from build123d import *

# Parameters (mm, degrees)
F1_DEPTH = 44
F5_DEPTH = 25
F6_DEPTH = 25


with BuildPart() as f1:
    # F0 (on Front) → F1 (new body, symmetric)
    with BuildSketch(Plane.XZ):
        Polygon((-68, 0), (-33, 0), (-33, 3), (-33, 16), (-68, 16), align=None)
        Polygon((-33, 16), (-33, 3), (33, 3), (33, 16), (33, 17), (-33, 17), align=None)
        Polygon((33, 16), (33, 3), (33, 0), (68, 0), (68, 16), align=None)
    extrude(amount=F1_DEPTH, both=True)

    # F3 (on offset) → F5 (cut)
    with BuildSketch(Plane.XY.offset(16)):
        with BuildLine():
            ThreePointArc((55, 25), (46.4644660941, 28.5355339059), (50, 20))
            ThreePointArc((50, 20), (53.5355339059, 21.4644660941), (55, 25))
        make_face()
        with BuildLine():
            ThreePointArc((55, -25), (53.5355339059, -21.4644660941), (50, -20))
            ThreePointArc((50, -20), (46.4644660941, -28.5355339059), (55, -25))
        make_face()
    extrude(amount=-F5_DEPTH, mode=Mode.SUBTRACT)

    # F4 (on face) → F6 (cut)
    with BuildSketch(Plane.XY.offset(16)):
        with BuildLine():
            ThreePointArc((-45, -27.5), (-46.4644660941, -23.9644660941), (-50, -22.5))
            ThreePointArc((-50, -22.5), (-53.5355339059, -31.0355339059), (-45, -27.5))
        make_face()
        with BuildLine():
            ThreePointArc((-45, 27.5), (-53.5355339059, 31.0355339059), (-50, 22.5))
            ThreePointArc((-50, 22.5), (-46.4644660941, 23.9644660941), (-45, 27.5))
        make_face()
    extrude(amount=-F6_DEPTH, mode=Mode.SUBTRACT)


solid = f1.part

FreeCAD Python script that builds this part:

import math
import FreeCAD as App
import Part
import Sketcher


def add_polygon(sketch, points):
    """Adds a closed chain of lines whose ends are joined by coincident constraints."""
    first, n = sketch.GeometryCount, len(points)
    for a, b in zip(points, points[1:] + points[:1]):
        sketch.addGeometry(Part.LineSegment(App.Vector(*a, 0), App.Vector(*b, 0)), False)
    for i in range(n):
        sketch.addConstraint(Sketcher.Constraint("Coincident", first + i, 2, first + (i + 1) % n, 1))

doc = App.newDocument("Part")
body = doc.addObject("PartDesign::Body", "Body")

# Sketch on XZ plane
sketch1 = body.newObject("Sketcher::SketchObject", "Sketch")
sketch1.AttachmentSupport = (doc.getObject("XZ_Plane"), [""])
sketch1.MapMode = "FlatFace"
add_polygon(sketch1, [(-68, 0), (-33, 0), (-33, 3), (33, 3), (33, 0), (68, 0), (68, 16), (33, 16), (33, 17), (-33, 17), (-33, 16), (-68, 16)])  # lines 0-11
sketch1.addConstraint([
    Sketcher.Constraint("Horizontal", 0),
    Sketcher.Constraint("Vertical", 1),
    Sketcher.Constraint("Horizontal", 2),
    Sketcher.Constraint("Vertical", 3),
    Sketcher.Constraint("Horizontal", 4),
    Sketcher.Constraint("Vertical", 5),
    Sketcher.Constraint("Horizontal", 6),
    Sketcher.Constraint("Vertical", 7),
    Sketcher.Constraint("Horizontal", 8),
    Sketcher.Constraint("Vertical", 9),
    Sketcher.Constraint("Horizontal", 10),
    Sketcher.Constraint("Vertical", 11),
    Sketcher.Constraint("Symmetric", 0, 2, 3, 2, -1, 1),
    Sketcher.Constraint("Symmetric", 6, 2, 9, 2, -2),
    Sketcher.Constraint("Symmetric", 4, 2, 11, 2, -2),
    Sketcher.Constraint("Vertical", 3, 2, 6, 2),
    Sketcher.Constraint("DistanceX", 0, 1, 0, 2, 35.0),
    Sketcher.Constraint("DistanceX", 2, 1, 2, 2, 66.0),
    Sketcher.Constraint("DistanceY", 1, 1, 1, 2, 3.0),
    Sketcher.Constraint("DistanceY", 5, 1, 5, 2, 16.0),
    Sketcher.Constraint("DistanceY", 7, 1, 7, 2, 1.0),
])
pad1 = body.newObject("PartDesign::Pad", "Pad")
pad1.Profile = sketch1
pad1.Length = 88
pad1.Midplane = True

# Sketch on XY plane
sketch2 = body.newObject("Sketcher::SketchObject", "Sketch001")
sketch2.AttachmentSupport = (doc.getObject("XY_Plane"), [""])
sketch2.MapMode = "FlatFace"
sketch2.AttachmentOffset = App.Placement(App.Vector(0, 0, 16), App.Rotation())
sketch2.addGeometry([
    Part.ArcOfCircle(Part.Circle(App.Vector(50, 25, 0), App.Vector(0, 0, 1), 5), math.radians(0), math.radians(270)),
    Part.ArcOfCircle(Part.Circle(App.Vector(50, 25, 0), App.Vector(0, 0, 1), 5), math.radians(-90), math.radians(0)),
    Part.ArcOfCircle(Part.Circle(App.Vector(50, -25, 0), App.Vector(0, 0, 1), 5), math.radians(0), math.radians(90)),
    Part.ArcOfCircle(Part.Circle(App.Vector(50, -25, 0), App.Vector(0, 0, 1), 5), math.radians(90), math.radians(360)),
], False)
sketch2.addConstraint([
    Sketcher.Constraint("Tangent", 0, 1, 1, 2),
    Sketcher.Constraint("Coincident", 1, 1, 0, 2),
    Sketcher.Constraint("Tangent", 2, 1, 3, 2),
    Sketcher.Constraint("Coincident", 3, 1, 2, 2),
    Sketcher.Constraint("Equal", 1, 2),
    Sketcher.Constraint("Symmetric", 0, 3, 2, 3, -1),
    Sketcher.Constraint("Horizontal", 1, 3, 0, 1),
    Sketcher.Constraint("Horizontal", 3, 3, 2, 1),
    Sketcher.Constraint("Vertical", 3, 3, 1, 1),
    Sketcher.Constraint("Vertical", 1, 1, 3, 1),
    Sketcher.Constraint("Radius", 0, 5.0),
    Sketcher.Constraint("DistanceX", -1, 1, 0, 3, 50.0),
    Sketcher.Constraint("DistanceY", -1, 1, 0, 3, 25.0),
])
pocket1 = body.newObject("PartDesign::Pocket", "Pocket")
pocket1.Profile = sketch2
pocket1.Length = 25

# Sketch on XY plane
sketch3 = body.newObject("Sketcher::SketchObject", "Sketch002")
sketch3.AttachmentSupport = (doc.getObject("XY_Plane"), [""])
sketch3.MapMode = "FlatFace"
sketch3.AttachmentOffset = App.Placement(App.Vector(0, 0, 16), App.Rotation())
sketch3.addGeometry([
    Part.ArcOfCircle(Part.Circle(App.Vector(-50, -28, 0), App.Vector(0, 0, 1), 5), math.radians(0), math.radians(90)),
    Part.ArcOfCircle(Part.Circle(App.Vector(-50, -28, 0), App.Vector(0, 0, 1), 5), math.radians(90), math.radians(360)),
    Part.ArcOfCircle(Part.Circle(App.Vector(-50, 28, 0), App.Vector(0, 0, 1), 5), math.radians(0), math.radians(270)),
    Part.ArcOfCircle(Part.Circle(App.Vector(-50, 28, 0), App.Vector(0, 0, 1), 5), math.radians(-90), math.radians(0)),
], False)
sketch3.addConstraint([
    Sketcher.Constraint("Tangent", 0, 1, 1, 2),
    Sketcher.Constraint("Coincident", 1, 1, 0, 2),
    Sketcher.Constraint("Tangent", 2, 1, 3, 2),
    Sketcher.Constraint("Coincident", 3, 1, 2, 2),
    Sketcher.Constraint("Equal", 1, 2),
    Sketcher.Constraint("Symmetric", 0, 3, 2, 3, -1),
    Sketcher.Constraint("Horizontal", 1, 3, 0, 1),
    Sketcher.Constraint("Horizontal", 3, 3, 2, 1),
    Sketcher.Constraint("Vertical", 3, 3, 1, 1),
    Sketcher.Constraint("Vertical", 1, 1, 3, 1),
    Sketcher.Constraint("Radius", 0, 5.0),
    Sketcher.Constraint("DistanceX", 0, 3, -1, 1, 50.0),
    Sketcher.Constraint("DistanceY", 0, 3, 2, 3, 55.0),
])
pocket2 = body.newObject("PartDesign::Pocket", "Pocket001")
pocket2.Profile = sketch3
pocket2.Length = 25

doc.recompute()
